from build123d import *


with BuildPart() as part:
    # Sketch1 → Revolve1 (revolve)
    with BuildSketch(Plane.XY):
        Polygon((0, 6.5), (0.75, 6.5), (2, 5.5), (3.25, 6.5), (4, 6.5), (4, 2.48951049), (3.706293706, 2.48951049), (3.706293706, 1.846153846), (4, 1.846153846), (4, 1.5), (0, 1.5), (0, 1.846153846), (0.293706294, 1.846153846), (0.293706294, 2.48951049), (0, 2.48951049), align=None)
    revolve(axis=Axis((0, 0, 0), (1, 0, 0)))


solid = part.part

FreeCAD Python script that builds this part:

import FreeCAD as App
import Part
import Sketcher

V = App.Vector

doc = App.newDocument("Part")
params = doc.addObject("Spreadsheet::Sheet", "Params")
for row, (alias, value) in enumerate([
    ("sketch1_width", "4 mm"),
    ("sketch1_width2", "0.75 mm"),
    ("revolution_angle", "360 deg"),
], start=1):
    params.set(f"A{row}", alias)
    params.set(f"B{row}", "=" + value)
    params.setAlias(f"B{row}", alias)

body = doc.addObject("PartDesign::Body", "Body")

sketch1 = body.newObject("Sketcher::SketchObject", "Sketch")
sketch1.AttachmentSupport = (doc.getObject("XY_Plane"), [""])
sketch1.MapMode = "FlatFace"
sketch1.addGeometry([
    Part.LineSegment(V(0.75, 6.5, 0), V(0, 6.5, 0)),
    Part.LineSegment(V(0, 6.5, 0), V(0, 2.48951, 0)),
    Part.LineSegment(V(0, 2.48951, 0), V(0.293706, 2.48951, 0)),
    Part.LineSegment(V(0.293706, 2.48951, 0), V(0.293706, 1.846154, 0)),
    Part.LineSegment(V(0.293706, 1.846154, 0), V(0, 1.846154, 0)),
    Part.LineSegment(V(0, 1.846154, 0), V(0, 1.5, 0)),
    Part.LineSegment(V(0, 1.5, 0), V(4, 1.5, 0)),
    Part.LineSegment(V(4, 1.5, 0), V(4, 1.846154, 0)),
    Part.LineSegment(V(4, 1.846154, 0), V(3.706294, 1.846154, 0)),
    Part.LineSegment(V(3.706294, 1.846154, 0), V(3.706294, 2.48951, 0)),
    Part.LineSegment(V(3.706294, 2.48951, 0), V(4, 2.48951, 0)),
    Part.LineSegment(V(4, 2.48951, 0), V(4, 6.5, 0)),
    Part.LineSegment(V(4, 6.5, 0), V(3.25, 6.5, 0)),
    Part.LineSegment(V(3.25, 6.5, 0), V(2, 5.5, 0)),
    Part.LineSegment(V(2, 5.5, 0), V(0.75, 6.5, 0)),
], False)
sketch1.addConstraint([
    Sketcher.Constraint("Coincident", 0, 2, 1, 1),
    Sketcher.Constraint("Coincident", 1, 2, 2, 1),
    Sketcher.Constraint("Coincident", 2, 2, 3, 1),
    Sketcher.Constraint("Coincident", 3, 2, 4, 1),
    Sketcher.Constraint("Coincident", 4, 2, 5, 1),
    Sketcher.Constraint("Coincident", 5, 2, 6, 1),
    Sketcher.Constraint("Coincident", 6, 2, 7, 1),
    Sketcher.Constraint("Coincident", 7, 2, 8, 1),
    Sketcher.Constraint("Coincident", 8, 2, 9, 1),
    Sketcher.Constraint("Coincident", 9, 2, 10, 1),
    Sketcher.Constraint("Coincident", 10, 2, 11, 1),
    Sketcher.Constraint("Coincident", 11, 2, 12, 1),
    Sketcher.Constraint("Coincident", 12, 2, 13, 1),
    Sketcher.Constraint("Coincident", 13, 2, 14, 1),
    Sketcher.Constraint("Coincident", 14, 2, 0, 1),
    Sketcher.Constraint("Horizontal", 0),
    Sketcher.Constraint("Vertical", 1),
    Sketcher.Constraint("Horizontal", 2),
    Sketcher.Constraint("Vertical", 3),
    Sketcher.Constraint("Horizontal", 4),
    Sketcher.Constraint("Vertical", 5),
    Sketcher.Constraint("Horizontal", 6),
    Sketcher.Constraint("Vertical", 7),
    Sketcher.Constraint("Horizontal", 8),
    Sketcher.Constraint("Vertical", 9),
    Sketcher.Constraint("Horizontal", 10),
    Sketcher.Constraint("Vertical", 11),
    Sketcher.Constraint("Horizontal", 12),
    Sketcher.Constraint("PointOnObject", 0, 2, -2),
    Sketcher.Constraint("PointOnObject", 4, 2, -2),
    Sketcher.Constraint("Horizontal", 4, 2, 7, 2),
    Sketcher.Constraint("Horizontal", 2, 2, 9, 2),
    Sketcher.Constraint("Horizontal", 0, 2, 11, 2),
    Sketcher.Constraint("Vertical", 7, 2, 10, 2),
    Sketcher.Constraint("Equal", 4, 8),
    Sketcher.Constraint("Equal", 0, 12),
    Sketcher.Constraint("Equal", 13, 14),
    Sketcher.Constraint("DistanceX", 6, 1, 6, 2, 4.0),
    Sketcher.Constraint("DistanceY", 5, 2, 0, 2, 5.0),
    Sketcher.Constraint("DistanceY", 13, 2, 12, 2, 1.0),
    Sketcher.Constraint("DistanceX", 0, 2, 0, 1, 0.75),
    Sketcher.Constraint("DistanceY", -1, 1, 0, 2, 6.5),
    Sketcher.Constraint("DistanceY", 1, 2, 1, 1, 4.01049),
    Sketcher.Constraint("DistanceX", 2, 1, 2, 2, 0.293706),
    Sketcher.Constraint("DistanceY", 3, 2, 3, 1, 0.643357),
])
sketch1.setExpression("Constraints[37]", "Params.sketch1_width")
sketch1.setExpression("Constraints[40]", "Params.sketch1_width2")
revolution = body.newObject("PartDesign::Revolution", "Revolution")
revolution.Profile = sketch1
revolution.ReferenceAxis = (sketch1, ["H_Axis"])
revolution.setExpression("Angle", "Params.revolution_angle")

doc.recompute()
